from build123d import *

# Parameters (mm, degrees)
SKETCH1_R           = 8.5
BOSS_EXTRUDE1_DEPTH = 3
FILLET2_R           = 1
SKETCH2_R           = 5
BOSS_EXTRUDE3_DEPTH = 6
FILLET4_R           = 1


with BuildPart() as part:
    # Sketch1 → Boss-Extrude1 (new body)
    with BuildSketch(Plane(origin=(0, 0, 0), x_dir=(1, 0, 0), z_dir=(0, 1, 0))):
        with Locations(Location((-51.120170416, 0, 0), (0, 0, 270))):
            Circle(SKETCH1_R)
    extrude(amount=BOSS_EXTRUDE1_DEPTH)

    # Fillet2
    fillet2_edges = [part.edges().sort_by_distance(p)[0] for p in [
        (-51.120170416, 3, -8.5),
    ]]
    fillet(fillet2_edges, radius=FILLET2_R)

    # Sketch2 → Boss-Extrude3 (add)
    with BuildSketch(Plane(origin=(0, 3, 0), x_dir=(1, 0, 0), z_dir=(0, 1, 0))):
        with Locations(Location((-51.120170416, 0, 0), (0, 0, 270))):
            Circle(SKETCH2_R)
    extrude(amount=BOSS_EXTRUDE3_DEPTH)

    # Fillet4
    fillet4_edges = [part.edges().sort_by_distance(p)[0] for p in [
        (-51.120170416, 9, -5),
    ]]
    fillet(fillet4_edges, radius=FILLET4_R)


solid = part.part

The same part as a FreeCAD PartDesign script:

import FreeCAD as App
import Part
import Sketcher

V = App.Vector
Q = App.Units.Quantity


def edges_at(feature, points):
    """Names of the edges that pass closest to the given points."""
    edges = feature.Shape.Edges
    near = lambda p: min(range(len(edges)), key=lambda i: edges[i].distToShape(Part.Vertex(*p))[0])
    return sorted({f"Edge{near(p) + 1}" for p in points})

doc = App.newDocument("Part")
body = doc.addObject("PartDesign::Body", "Body")

sketch1 = body.newObject("Sketcher::SketchObject", "Sketch")
sketch1.AttachmentSupport = (doc.getObject("XZ_Plane"), [""])
sketch1.MapMode = "FlatFace"
sketch1.addGeometry(Part.Circle(V(-51, 0, 0), V(0, 0, 1), 8), False)
sketch1.addConstraint([
    Sketcher.Constraint("PointOnObject", 0, 3, -1),
    Sketcher.Constraint("Diameter", 0, Q("17 mm")),
    Sketcher.Constraint("DistanceX", 0, 3, -1, 1, Q("51.12017 mm")),
])
pad1 = body.newObject("PartDesign::Pad", "Pad")
pad1.Profile = sketch1
pad1.Length = 3
pad1.Reversed = True
doc.recompute()

fillet = body.newObject("PartDesign::Fillet", "Fillet")
fillet.Base = (pad1, edges_at(pad1, [(-51.12, 3, -8.5)]))
fillet.Radius = 1

sketch2 = body.newObject("Sketcher::SketchObject", "Sketch001")
sketch2.AttachmentSupport = (doc.getObject("XZ_Plane"), [""])
sketch2.MapMode = "FlatFace"
sketch2.AttachmentOffset = App.Placement(V(0, 0, -3), App.Rotation())
sketch2.addGeometry(Part.Circle(V(-51, 0, 0), V(0, 0, 1), 5), False)
sketch2.addConstraint([
    Sketcher.Constraint("PointOnObject", 0, 3, -1),
    Sketcher.Constraint("Diameter", 0, Q("10 mm")),
    Sketcher.Constraint("DistanceX", 0, 3, -1, 1, Q("51.12017 mm")),
])
pad2 = body.newObject("PartDesign::Pad", "Pad001")
pad2.Profile = sketch2
pad2.Length = 6
pad2.Reversed = True
doc.recompute()

fillet2 = body.newObject("PartDesign::Fillet", "Fillet001")
fillet2.Base = (pad2, edges_at(pad2, [(-51.12, 9, -5)]))
fillet2.Radius = 1

doc.recompute()
